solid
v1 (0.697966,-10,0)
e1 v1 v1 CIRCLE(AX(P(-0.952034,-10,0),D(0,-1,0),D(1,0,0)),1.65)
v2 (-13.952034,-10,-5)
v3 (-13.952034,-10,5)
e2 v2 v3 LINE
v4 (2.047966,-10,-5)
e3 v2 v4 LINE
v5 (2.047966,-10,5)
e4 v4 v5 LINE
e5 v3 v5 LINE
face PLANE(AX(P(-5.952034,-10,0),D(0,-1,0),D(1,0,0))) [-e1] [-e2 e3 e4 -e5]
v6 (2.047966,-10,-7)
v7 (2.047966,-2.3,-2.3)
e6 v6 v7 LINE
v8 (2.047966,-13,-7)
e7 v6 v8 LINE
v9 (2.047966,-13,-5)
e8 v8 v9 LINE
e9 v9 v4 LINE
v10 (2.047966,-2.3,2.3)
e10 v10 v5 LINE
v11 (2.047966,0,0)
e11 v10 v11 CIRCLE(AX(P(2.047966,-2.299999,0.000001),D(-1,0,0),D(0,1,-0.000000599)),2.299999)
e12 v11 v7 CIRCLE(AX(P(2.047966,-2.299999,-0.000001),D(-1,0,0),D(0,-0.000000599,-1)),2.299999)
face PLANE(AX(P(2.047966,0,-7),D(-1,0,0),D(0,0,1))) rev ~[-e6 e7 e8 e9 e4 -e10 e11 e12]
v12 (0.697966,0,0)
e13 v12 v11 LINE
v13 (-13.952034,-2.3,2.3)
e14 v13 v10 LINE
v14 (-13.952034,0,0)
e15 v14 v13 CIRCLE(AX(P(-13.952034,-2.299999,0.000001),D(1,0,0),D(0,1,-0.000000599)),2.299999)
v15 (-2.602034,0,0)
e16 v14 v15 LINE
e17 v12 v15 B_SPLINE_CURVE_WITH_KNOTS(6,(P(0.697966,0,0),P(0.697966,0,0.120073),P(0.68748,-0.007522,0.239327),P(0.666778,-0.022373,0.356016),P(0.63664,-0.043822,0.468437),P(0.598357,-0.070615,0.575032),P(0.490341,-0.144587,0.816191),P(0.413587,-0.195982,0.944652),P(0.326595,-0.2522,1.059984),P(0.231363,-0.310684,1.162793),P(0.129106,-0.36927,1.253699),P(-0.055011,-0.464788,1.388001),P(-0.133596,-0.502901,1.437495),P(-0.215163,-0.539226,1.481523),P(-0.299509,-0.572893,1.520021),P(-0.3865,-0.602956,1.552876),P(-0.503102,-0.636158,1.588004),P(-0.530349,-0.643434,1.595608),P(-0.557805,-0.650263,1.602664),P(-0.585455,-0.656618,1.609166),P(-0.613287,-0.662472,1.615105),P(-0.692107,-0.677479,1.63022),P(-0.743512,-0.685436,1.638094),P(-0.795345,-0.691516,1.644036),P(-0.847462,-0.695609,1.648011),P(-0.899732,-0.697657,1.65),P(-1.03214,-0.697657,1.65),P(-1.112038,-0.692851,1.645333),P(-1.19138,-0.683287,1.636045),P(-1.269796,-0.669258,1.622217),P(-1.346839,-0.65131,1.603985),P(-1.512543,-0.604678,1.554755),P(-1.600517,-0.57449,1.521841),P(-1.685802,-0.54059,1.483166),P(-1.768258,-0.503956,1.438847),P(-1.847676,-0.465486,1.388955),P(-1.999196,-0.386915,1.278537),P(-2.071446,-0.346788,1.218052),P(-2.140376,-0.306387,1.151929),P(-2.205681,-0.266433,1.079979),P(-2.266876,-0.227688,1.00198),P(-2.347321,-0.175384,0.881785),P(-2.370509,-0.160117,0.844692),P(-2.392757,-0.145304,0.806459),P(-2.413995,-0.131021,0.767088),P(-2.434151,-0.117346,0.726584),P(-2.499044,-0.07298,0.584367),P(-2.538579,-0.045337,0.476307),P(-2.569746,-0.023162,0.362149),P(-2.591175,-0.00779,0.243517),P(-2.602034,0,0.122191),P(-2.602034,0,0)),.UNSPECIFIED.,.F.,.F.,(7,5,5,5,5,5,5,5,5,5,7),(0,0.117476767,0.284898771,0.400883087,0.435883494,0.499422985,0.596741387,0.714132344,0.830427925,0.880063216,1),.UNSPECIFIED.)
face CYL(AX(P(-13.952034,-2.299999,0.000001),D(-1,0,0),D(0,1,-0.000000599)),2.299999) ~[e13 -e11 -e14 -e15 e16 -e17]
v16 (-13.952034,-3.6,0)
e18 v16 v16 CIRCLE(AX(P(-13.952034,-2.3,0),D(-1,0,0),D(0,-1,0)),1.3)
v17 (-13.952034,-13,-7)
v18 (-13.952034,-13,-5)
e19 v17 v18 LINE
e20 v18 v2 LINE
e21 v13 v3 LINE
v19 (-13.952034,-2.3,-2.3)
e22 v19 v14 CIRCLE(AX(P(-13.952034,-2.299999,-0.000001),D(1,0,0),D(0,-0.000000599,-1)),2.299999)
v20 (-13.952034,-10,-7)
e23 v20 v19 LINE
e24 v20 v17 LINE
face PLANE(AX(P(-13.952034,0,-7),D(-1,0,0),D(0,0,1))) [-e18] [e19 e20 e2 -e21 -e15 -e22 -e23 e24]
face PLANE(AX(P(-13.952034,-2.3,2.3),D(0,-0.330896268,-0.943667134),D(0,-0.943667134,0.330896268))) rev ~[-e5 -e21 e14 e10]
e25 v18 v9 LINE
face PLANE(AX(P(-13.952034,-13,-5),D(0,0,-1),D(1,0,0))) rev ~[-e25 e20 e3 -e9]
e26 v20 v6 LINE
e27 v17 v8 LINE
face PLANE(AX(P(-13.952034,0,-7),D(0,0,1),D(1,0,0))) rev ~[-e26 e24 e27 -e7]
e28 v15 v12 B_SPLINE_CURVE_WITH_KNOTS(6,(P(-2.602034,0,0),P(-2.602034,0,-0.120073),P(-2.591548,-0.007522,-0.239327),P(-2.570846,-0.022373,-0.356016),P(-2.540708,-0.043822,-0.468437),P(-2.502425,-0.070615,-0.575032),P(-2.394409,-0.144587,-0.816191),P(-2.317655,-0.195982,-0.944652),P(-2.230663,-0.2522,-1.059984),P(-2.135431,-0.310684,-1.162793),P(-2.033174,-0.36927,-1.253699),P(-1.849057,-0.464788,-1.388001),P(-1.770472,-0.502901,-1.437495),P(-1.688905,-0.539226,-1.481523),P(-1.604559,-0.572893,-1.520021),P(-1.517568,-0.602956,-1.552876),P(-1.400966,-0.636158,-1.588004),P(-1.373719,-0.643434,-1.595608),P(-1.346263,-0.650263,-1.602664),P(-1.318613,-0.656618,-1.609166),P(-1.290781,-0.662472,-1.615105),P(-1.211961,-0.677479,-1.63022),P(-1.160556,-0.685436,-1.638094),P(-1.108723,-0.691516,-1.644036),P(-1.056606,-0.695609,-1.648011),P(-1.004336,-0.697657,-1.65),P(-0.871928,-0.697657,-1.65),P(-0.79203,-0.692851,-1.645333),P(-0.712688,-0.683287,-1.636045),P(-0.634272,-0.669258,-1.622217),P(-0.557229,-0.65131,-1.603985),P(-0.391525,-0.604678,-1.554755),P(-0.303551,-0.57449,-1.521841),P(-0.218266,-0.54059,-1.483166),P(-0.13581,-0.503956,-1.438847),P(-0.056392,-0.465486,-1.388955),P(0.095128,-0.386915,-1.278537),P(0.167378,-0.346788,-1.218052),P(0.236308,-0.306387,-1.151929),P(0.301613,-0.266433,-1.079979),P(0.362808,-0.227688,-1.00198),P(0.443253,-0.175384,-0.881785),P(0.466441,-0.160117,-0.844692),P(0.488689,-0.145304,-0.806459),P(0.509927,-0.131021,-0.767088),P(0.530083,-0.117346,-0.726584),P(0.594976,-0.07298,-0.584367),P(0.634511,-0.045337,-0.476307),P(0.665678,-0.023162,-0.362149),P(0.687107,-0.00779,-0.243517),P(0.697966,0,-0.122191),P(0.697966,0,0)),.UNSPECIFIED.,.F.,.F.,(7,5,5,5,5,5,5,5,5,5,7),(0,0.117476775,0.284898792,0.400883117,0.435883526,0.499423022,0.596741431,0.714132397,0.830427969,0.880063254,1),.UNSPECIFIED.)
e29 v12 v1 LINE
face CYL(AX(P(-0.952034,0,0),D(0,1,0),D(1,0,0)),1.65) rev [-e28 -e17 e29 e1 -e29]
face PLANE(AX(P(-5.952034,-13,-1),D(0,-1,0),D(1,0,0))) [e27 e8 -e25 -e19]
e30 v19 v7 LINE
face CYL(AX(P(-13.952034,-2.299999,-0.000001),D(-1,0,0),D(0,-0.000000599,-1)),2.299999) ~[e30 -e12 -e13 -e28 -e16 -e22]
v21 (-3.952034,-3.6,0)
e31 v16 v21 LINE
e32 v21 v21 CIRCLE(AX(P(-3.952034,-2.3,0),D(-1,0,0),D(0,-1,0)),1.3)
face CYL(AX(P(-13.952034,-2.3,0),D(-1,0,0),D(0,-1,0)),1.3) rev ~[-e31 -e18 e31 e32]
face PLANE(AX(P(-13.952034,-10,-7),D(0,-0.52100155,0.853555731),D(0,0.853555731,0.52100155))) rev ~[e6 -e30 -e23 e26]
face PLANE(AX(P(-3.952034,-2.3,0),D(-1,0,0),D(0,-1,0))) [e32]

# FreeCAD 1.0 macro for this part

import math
import FreeCAD as App
import Part
import Sketcher
Q = App.Units.Quantity

doc = App.newDocument("Part")
body = doc.addObject("PartDesign::Body", "Body")

# Sketch on XZ plane
sketch1 = body.newObject("Sketcher::SketchObject", "Sketch")
sketch1.AttachmentSupport = (doc.getObject("XZ_Plane"), [""])
sketch1.MapMode = "FlatFace"
sketch1.addGeometry([
    Part.LineSegment(App.Vector(-14, 5, 0), App.Vector(-14, -7, 0)),  # 0
    Part.LineSegment(App.Vector(-14, -7, 0), App.Vector(2, -7, 0)),  # 1
    Part.LineSegment(App.Vector(2, -7, 0), App.Vector(2, 5, 0)),  # 2
    Part.LineSegment(App.Vector(2, 5, 0), App.Vector(-14, 5, 0)),  # 3
    Part.Circle(App.Vector(-1, 0, 0), App.Vector(0, 0, 1), 1.6),  # 4
], False)
sketch1.addConstraint([
    Sketcher.Constraint("Coincident", 0, 2, 1, 1),
    Sketcher.Constraint("Coincident", 1, 2, 2, 1),
    Sketcher.Constraint("Coincident", 2, 2, 3, 1),
    Sketcher.Constraint("Coincident", 3, 2, 0, 1),
    Sketcher.Constraint("Vertical", 0),
    Sketcher.Constraint("Horizontal", 1),
    Sketcher.Constraint("Vertical", 2),
    Sketcher.Constraint("Horizontal", 3),
    Sketcher.Constraint("PointOnObject", 4, 3, -1),
    Sketcher.Constraint("Diameter", 4, Q("3.3 mm")),
    Sketcher.Constraint("DistanceX", 1, 1, 1, 2, Q("16 mm")),
    Sketcher.Constraint("DistanceY", 0, 2, 0, 1, Q("12 mm")),
    Sketcher.Constraint("DistanceY", 0, 2, -1, 1, Q("7 mm")),
    Sketcher.Constraint("DistanceX", 0, 2, 4, 3, Q("13 mm")),
    Sketcher.Constraint("DistanceX", 4, 3, -1, 1, Q("0.952034 mm")),
])
pad1 = body.newObject("PartDesign::Pad", "Pad")
pad1.Profile = sketch1
pad1.Length = 13

# Sketch on XZ plane
sketch2 = body.newObject("Sketcher::SketchObject", "Sketch001")
sketch2.AttachmentSupport = (doc.getObject("XZ_Plane"), [""])
sketch2.MapMode = "FlatFace"
sketch2.AttachmentOffset = App.Placement(App.Vector(0, 0, 13), App.Rotation())
sketch2.addGeometry([
    Part.LineSegment(App.Vector(-14, 5, 0), App.Vector(-14, -5, 0)),  # 0
    Part.LineSegment(App.Vector(-14, -5, 0), App.Vector(2, -5, 0)),  # 1
    Part.LineSegment(App.Vector(2, -5, 0), App.Vector(2, 5, 0)),  # 2
    Part.LineSegment(App.Vector(2, 5, 0), App.Vector(-14, 5, 0)),  # 3
    Part.Circle(App.Vector(-1, 0, 0), App.Vector(0, 0, 1), 1.6),  # 4
], False)
sketch2.addConstraint([
    Sketcher.Constraint("Coincident", 0, 2, 1, 1),
    Sketcher.Constraint("Coincident", 1, 2, 2, 1),
    Sketcher.Constraint("Coincident", 2, 2, 3, 1),
    Sketcher.Constraint("Coincident", 3, 2, 0, 1),
    Sketcher.Constraint("Vertical", 0),
    Sketcher.Constraint("Horizontal", 1),
    Sketcher.Constraint("Vertical", 2),
    Sketcher.Constraint("Horizontal", 3),
    Sketcher.Constraint("PointOnObject", 4, 3, -1),
    Sketcher.Constraint("Diameter", 4, Q("3.3 mm")),
    Sketcher.Constraint("DistanceX", 1, 1, 1, 2, Q("16 mm")),
    Sketcher.Constraint("DistanceY", 0, 2, 0, 1, Q("10 mm")),
    Sketcher.Constraint("DistanceY", 0, 2, -1, 1, Q("5 mm")),
    Sketcher.Constraint("DistanceX", 0, 2, 4, 3, Q("13 mm")),
    Sketcher.Constraint("DistanceX", 4, 3, -1, 1, Q("0.952034 mm")),
])
pocket1 = body.newObject("PartDesign::Pocket", "Pocket")
pocket1.Profile = sketch2
pocket1.Length = 3

# Sketch on YZ plane
sketch3 = body.newObject("Sketcher::SketchObject", "Sketch002")
sketch3.AttachmentSupport = (doc.getObject("YZ_Plane"), [""])
sketch3.MapMode = "FlatFace"
sketch3.AttachmentOffset = App.Placement(App.Vector(0, 0, -13.952034), App.Rotation())
sketch3.addGeometry([
    Part.ArcOfCircle(Part.Circle(App.Vector(-2.3, 0, 0), App.Vector(0, 0, 1), 2.3), math.radians(0), math.radians(90)),  # 0
    Part.LineSegment(App.Vector(-2.3, 2.3, 0), App.Vector(-10, 5, 0)),  # 1
    Part.LineSegment(App.Vector(-10, 5, 0), App.Vector(0, 5, 0)),  # 2
    Part.LineSegment(App.Vector(0, 5, 0), App.Vector(0, 0, 0)),  # 3
    Part.LineSegment(App.Vector(-10, -7, 0), App.Vector(-2.3, -2.3, 0)),  # 4
    Part.ArcOfCircle(Part.Circle(App.Vector(-2.3, 0, 0), App.Vector(0, 0, 1), 2.3), math.radians(-90), math.radians(0)),  # 5
    Part.LineSegment(App.Vector(0, 0, 0), App.Vector(0, -7, 0)),  # 6
    Part.LineSegment(App.Vector(0, -7, 0), App.Vector(-10, -7, 0)),  # 7
], False)
sketch3.addConstraint([
    Sketcher.Constraint("Coincident", 0, 2, 1, 1),
    Sketcher.Constraint("Coincident", 1, 2, 2, 1),
    Sketcher.Constraint("Coincident", 2, 2, 3, 1),
    Sketcher.Constraint("Tangent", 3, 2, 0, 1),
    Sketcher.Constraint("Coincident", 4, 2, 5, 1),
    Sketcher.Constraint("Tangent", 5, 2, 6, 1),
    Sketcher.Constraint("Coincident", 6, 2, 7, 1),
    Sketcher.Constraint("Coincident", 7, 2, 4, 1),
    Sketcher.Constraint("Horizontal", 2),
    Sketcher.Constraint("Vertical", 3),
    Sketcher.Constraint("Vertical", 6),
    Sketcher.Constraint("Horizontal", 7),
    Sketcher.Constraint("Coincident", 3, 2, -1, 1),
    Sketcher.Constraint("Coincident", 5, 2, -1, 1),
    Sketcher.Constraint("Equal", 0, 5),
    Sketcher.Constraint("Vertical", 5, 3, 0, 2),
    Sketcher.Constraint("Vertical", 0, 2, 4, 2),
    Sketcher.Constraint("Vertical", 1, 2, 7, 2),
    Sketcher.Constraint("Radius", 0, Q("2.299999 mm")),
    Sketcher.Constraint("DistanceX", 2, 1, 2, 2, Q("10 mm")),
    Sketcher.Constraint("DistanceY", 3, 2, 3, 1, Q("5 mm")),
    Sketcher.Constraint("DistanceY", 6, 2, 6, 1, Q("7 mm")),
])
pocket2 = body.newObject("PartDesign::Pocket", "Pocket001")
pocket2.Profile = sketch3
pocket2.Type = "ThroughAll"
pocket2.Reversed = True

# Sketch on YZ plane
sketch4 = body.newObject("Sketcher::SketchObject", "Sketch003")
sketch4.AttachmentSupport = (doc.getObject("YZ_Plane"), [""])
sketch4.MapMode = "FlatFace"
sketch4.AttachmentOffset = App.Placement(App.Vector(0, 0, -13.952034), App.Rotation())
sketch4.addGeometry(Part.Circle(App.Vector(-2.3, 0, 0), App.Vector(0, 0, 1), 1.3), False)
sketch4.addConstraint([
    Sketcher.Constraint("PointOnObject", 0, 3, -1),
    Sketcher.Constraint("Diameter", 0, Q("2.6 mm")),
    Sketcher.Constraint("DistanceX", 0, 3, -1, 1, Q("2.3 mm")),
])
pocket3 = body.newObject("PartDesign::Pocket", "Pocket002")
pocket3.Profile = sketch4
pocket3.Length = 10
pocket3.Reversed = True

doc.recompute()
